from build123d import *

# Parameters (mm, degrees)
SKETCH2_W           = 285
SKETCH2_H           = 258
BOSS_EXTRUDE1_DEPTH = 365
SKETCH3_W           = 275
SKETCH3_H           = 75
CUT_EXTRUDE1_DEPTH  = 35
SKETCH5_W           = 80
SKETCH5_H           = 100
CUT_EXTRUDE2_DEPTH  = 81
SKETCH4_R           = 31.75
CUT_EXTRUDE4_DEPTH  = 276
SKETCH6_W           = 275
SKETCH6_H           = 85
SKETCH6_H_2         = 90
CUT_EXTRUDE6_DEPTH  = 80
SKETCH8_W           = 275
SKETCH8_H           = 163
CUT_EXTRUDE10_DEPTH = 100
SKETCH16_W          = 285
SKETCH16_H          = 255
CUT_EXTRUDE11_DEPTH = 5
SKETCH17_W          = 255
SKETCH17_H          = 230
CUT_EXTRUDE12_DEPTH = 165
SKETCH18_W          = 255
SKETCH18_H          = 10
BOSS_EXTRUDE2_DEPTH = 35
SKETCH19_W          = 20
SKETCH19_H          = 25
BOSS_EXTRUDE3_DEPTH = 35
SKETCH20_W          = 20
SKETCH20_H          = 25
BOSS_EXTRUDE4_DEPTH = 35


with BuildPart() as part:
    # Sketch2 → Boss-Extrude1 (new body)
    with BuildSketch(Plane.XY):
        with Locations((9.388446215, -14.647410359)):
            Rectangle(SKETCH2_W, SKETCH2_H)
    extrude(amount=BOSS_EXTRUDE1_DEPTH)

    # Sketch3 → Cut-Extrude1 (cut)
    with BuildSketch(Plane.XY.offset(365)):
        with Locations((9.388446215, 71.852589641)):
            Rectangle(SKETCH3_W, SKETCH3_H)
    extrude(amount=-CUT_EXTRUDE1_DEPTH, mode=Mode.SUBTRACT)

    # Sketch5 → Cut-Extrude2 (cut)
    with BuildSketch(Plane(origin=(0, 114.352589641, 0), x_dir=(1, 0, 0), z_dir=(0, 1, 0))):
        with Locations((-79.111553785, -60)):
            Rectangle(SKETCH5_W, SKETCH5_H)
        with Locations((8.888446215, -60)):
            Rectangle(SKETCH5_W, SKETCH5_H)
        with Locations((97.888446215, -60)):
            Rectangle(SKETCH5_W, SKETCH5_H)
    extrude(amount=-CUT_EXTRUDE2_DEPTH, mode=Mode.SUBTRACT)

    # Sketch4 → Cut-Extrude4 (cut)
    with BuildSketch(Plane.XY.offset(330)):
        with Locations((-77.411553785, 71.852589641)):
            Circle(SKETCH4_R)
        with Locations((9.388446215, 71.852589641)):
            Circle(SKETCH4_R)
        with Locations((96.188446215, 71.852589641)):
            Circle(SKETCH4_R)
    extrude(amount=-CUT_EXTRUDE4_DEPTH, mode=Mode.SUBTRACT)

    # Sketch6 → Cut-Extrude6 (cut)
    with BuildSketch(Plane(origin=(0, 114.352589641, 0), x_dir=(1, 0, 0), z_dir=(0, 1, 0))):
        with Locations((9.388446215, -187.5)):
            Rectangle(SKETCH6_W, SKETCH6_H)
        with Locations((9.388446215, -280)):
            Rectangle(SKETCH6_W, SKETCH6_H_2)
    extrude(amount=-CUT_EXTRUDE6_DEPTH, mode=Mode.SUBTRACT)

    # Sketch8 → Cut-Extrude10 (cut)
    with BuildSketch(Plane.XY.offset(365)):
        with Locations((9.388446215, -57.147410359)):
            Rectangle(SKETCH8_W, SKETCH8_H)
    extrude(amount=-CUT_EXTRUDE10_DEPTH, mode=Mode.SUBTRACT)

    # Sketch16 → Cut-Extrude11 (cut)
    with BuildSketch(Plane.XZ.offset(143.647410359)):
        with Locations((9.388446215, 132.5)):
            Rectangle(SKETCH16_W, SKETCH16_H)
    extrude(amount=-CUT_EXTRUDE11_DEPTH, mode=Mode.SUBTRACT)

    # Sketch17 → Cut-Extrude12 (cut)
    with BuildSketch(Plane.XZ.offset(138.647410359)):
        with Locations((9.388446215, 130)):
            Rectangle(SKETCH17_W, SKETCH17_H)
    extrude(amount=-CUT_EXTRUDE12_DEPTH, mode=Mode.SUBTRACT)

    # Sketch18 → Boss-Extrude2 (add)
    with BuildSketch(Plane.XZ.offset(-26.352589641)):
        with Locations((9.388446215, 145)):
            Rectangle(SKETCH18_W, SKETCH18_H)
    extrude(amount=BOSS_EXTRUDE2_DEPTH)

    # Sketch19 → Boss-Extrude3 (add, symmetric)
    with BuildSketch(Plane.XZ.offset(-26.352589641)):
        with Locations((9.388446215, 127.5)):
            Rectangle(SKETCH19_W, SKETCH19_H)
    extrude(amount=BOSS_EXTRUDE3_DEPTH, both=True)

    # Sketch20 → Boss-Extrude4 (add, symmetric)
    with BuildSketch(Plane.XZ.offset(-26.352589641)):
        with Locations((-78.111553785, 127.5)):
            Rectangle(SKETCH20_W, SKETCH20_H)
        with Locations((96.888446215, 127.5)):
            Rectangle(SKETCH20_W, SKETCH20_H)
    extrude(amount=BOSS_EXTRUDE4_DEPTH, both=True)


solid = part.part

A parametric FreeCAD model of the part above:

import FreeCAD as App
import Part
import Sketcher

V = App.Vector


def add_polygon(sketch, points):
    """Adds a closed chain of lines whose ends are joined by coincident constraints."""
    first, n = sketch.GeometryCount, len(points)
    for a, b in zip(points, points[1:] + points[:1]):
        sketch.addGeometry(Part.LineSegment(App.Vector(*a, 0), App.Vector(*b, 0)), False)
    for i in range(n):
        sketch.addConstraint(Sketcher.Constraint("Coincident", first + i, 2, first + (i + 1) % n, 1))

doc = App.newDocument("Part")
params = doc.addObject("Spreadsheet::Sheet", "Params")
for row, (alias, value) in enumerate([
    ("sketch1_width", "285 mm"),
    ("sketch1_height", "258 mm"),
    ("pad1_length", "365 mm"),
    ("sketch2_width", "275 mm"),
    ("sketch2_height", "75 mm"),
    ("pocket1_length", "35 mm"),
    ("sketch3_width", "80 mm"),
    ("sketch3_height", "100 mm"),
    ("pocket2_length", "81 mm"),
    ("sketch4_diameter", "63.5 mm"),
    ("pocket3_length", "276 mm"),
    ("sketch5_width", "275 mm"),
    ("sketch5_height", "85 mm"),
    ("sketch5_height2", "90 mm"),
    ("pocket4_length", "80 mm"),
    ("sketch6_width", "275 mm"),
    ("sketch6_height", "163 mm"),
    ("pocket5_length", "100 mm"),
    ("sketch7_width", "285 mm"),
    ("sketch7_height", "255 mm"),
    ("pocket6_length", "5 mm"),
    ("sketch8_width", "255 mm"),
    ("sketch8_height", "230 mm"),
    ("pocket7_length", "165 mm"),
    ("sketch9_width", "255 mm"),
    ("sketch9_height", "10 mm"),
    ("pad2_length", "35 mm"),
    ("sketch10_width", "20 mm"),
    ("sketch10_height", "25 mm"),
    ("pad3_length", "70 mm"),
    ("sketch11_width", "20 mm"),
    ("sketch11_height", "25 mm"),
    ("pad4_length", "70 mm"),
], start=1):
    params.set(f"A{row}", alias)
    params.set(f"B{row}", "=" + value)
    params.setAlias(f"B{row}", alias)

body = doc.addObject("PartDesign::Body", "Body")

sketch1 = body.newObject("Sketcher::SketchObject", "Sketch")
sketch1.AttachmentSupport = (doc.getObject("XY_Plane"), [""])
sketch1.MapMode = "FlatFace"
add_polygon(sketch1, [(-133, 114), (-133, -144), (152, -144), (152, 114)])
sketch1.addConstraint([
    Sketcher.Constraint("Vertical", 0),
    Sketcher.Constraint("Horizontal", 1),
    Sketcher.Constraint("Vertical", 2),
    Sketcher.Constraint("Horizontal", 3),
    Sketcher.Constraint("DistanceX", 1, 1, 1, 2, 285.0),
    Sketcher.Constraint("DistanceY", 0, 2, 0, 1, 258.0),
    Sketcher.Constraint("DistanceY", 0, 2, -1, 1, 143.64741),
    Sketcher.Constraint("DistanceX", 0, 2, -1, 1, 133.111554),
])
sketch1.setExpression("Constraints[8]", "Params.sketch1_width")
sketch1.setExpression("Constraints[9]", "Params.sketch1_height")
pad1 = body.newObject("PartDesign::Pad", "Pad")
pad1.Profile = sketch1
pad1.setExpression("Length", "Params.pad1_length")

sketch2 = body.newObject("Sketcher::SketchObject", "Sketch001")
sketch2.AttachmentSupport = (doc.getObject("XY_Plane"), [""])
sketch2.MapMode = "FlatFace"
sketch2.AttachmentOffset = App.Placement(V(0, 0, 365), App.Rotation())
add_polygon(sketch2, [(-128, 109), (-128, 34), (147, 34), (147, 109)])
sketch2.addConstraint([
    Sketcher.Constraint("Vertical", 0),
    Sketcher.Constraint("Horizontal", 1),
    Sketcher.Constraint("Vertical", 2),
    Sketcher.Constraint("Horizontal", 3),
    Sketcher.Constraint("DistanceX", 1, 1, 1, 2, 275.0),
    Sketcher.Constraint("DistanceY", 0, 2, 0, 1, 75.0),
    Sketcher.Constraint("DistanceY", -1, 1, 0, 2, 34.35259),
    Sketcher.Constraint("DistanceX", 0, 2, -1, 1, 128.111554),
])
sketch2.setExpression("Constraints[8]", "Params.sketch2_width")
sketch2.setExpression("Constraints[9]", "Params.sketch2_height")
pocket1 = body.newObject("PartDesign::Pocket", "Pocket")
pocket1.Profile = sketch2
pocket1.setExpression("Length", "Params.pocket1_length")

sketch3 = body.newObject("Sketcher::SketchObject", "Sketch002")
sketch3.AttachmentSupport = (doc.getObject("XZ_Plane"), [""])
sketch3.MapMode = "FlatFace"
sketch3.AttachmentOffset = App.Placement(V(0, 0, -114.35259), App.Rotation())
add_polygon(sketch3, [(-119, 10), (-119, 110), (-39, 110), (-39, 10)])
add_polygon(sketch3, [(-31, 10), (-31, 110), (49, 110), (49, 10)])
add_polygon(sketch3, [(58, 10), (58, 110), (138, 110), (138, 10)])
sketch3.addConstraint([
    Sketcher.Constraint("Vertical", 0),
    Sketcher.Constraint("Horizontal", 1),
    Sketcher.Constraint("Vertical", 2),
    Sketcher.Constraint("Horizontal", 3),
    Sketcher.Constraint("Vertical", 4),
    Sketcher.Constraint("Horizontal", 5),
    Sketcher.Constraint("Vertical", 6),
    Sketcher.Constraint("Horizontal", 7),
    Sketcher.Constraint("Vertical", 8),
    Sketcher.Constraint("Horizontal", 9),
    Sketcher.Constraint("Vertical", 10),
    Sketcher.Constraint("Horizontal", 11),
    Sketcher.Constraint("Horizontal", 1, 2, 4, 2),
    Sketcher.Constraint("Horizontal", 3, 2, 6, 2),
    Sketcher.Constraint("Horizontal", 5, 2, 8, 2),
    Sketcher.Constraint("Horizontal", 7, 2, 10, 2),
    Sketcher.Constraint("Equal", 3, 5),
    Sketcher.Constraint("Equal", 7, 9),
    Sketcher.Constraint("DistanceX", 1, 1, 1, 2, 80.0),
    Sketcher.Constraint("DistanceY", 0, 1, 0, 2, 100.0),
    Sketcher.Constraint("DistanceY", -1, 1, 0, 2, 110.0),
    Sketcher.Constraint("DistanceX", 1, 2, 4, 2, 8.0),
    Sketcher.Constraint("DistanceX", 5, 2, 8, 2, 9.0),
    Sketcher.Constraint("DistanceX", 0, 2, -1, 1, 119.111554),
])
sketch3.setExpression("Constraints[30]", "Params.sketch3_width")
sketch3.setExpression("Constraints[31]", "Params.sketch3_height")
pocket2 = body.newObject("PartDesign::Pocket", "Pocket001")
pocket2.Profile = sketch3
pocket2.setExpression("Length", "Params.pocket2_length")
pocket2.Reversed = True

sketch4 = body.newObject("Sketcher::SketchObject", "Sketch003")
sketch4.AttachmentSupport = (doc.getObject("XY_Plane"), [""])
sketch4.MapMode = "FlatFace"
sketch4.AttachmentOffset = App.Placement(V(0, 0, 330), App.Rotation())
sketch4.addGeometry([
    Part.Circle(V(-77, 72, 0), V(0, 0, 1), 32),
    Part.Circle(V(9, 72, 0), V(0, 0, 1), 32),
    Part.Circle(V(96, 72, 0), V(0, 0, 1), 32),
], False)
sketch4.addConstraint([
    Sketcher.Constraint("Equal", 0, 1),
    Sketcher.Constraint("Equal", 1, 2),
    Sketcher.Constraint("Horizontal", 0, 3, 1, 3),
    Sketcher.Constraint("Horizontal", 1, 3, 2, 3),
    Sketcher.Constraint("Diameter", 0, 63.5),
    Sketcher.Constraint("DistanceX", 0, 3, 1, 3, 86.8),
    Sketcher.Constraint("DistanceX", 1, 3, 2, 3, 86.8),
    Sketcher.Constraint("DistanceY", -1, 1, 0, 3, 71.85259),
    Sketcher.Constraint("DistanceX", 0, 3, -1, 1, 77.411554),
])
sketch4.setExpression("Constraints[4]", "Params.sketch4_diameter")
pocket3 = body.newObject("PartDesign::Pocket", "Pocket002")
pocket3.Profile = sketch4
pocket3.setExpression("Length", "Params.pocket3_length")

sketch5 = body.newObject("Sketcher::SketchObject", "Sketch004")
sketch5.AttachmentSupport = (doc.getObject("XZ_Plane"), [""])
sketch5.MapMode = "FlatFace"
sketch5.AttachmentOffset = App.Placement(V(0, 0, -114.35259), App.Rotation())
add_polygon(sketch5, [(-128, 145), (-128, 230), (147, 230), (147, 145)])
add_polygon(sketch5, [(-128, 235), (-128, 325), (147, 325), (147, 235)])
sketch5.addConstraint([
    Sketcher.Constraint("Vertical", 0),
    Sketcher.Constraint("Horizontal", 1),
    Sketcher.Constraint("Vertical", 2),
    Sketcher.Constraint("Horizontal", 3),
    Sketcher.Constraint("Vertical", 4),
    Sketcher.Constraint("Horizontal", 5),
    Sketcher.Constraint("Vertical", 6),
    Sketcher.Constraint("Horizontal", 7),
    Sketcher.Constraint("Vertical", 3, 2, 4, 2),
    Sketcher.Constraint("Vertical", 2, 2, 5, 2),
    Sketcher.Constraint("DistanceX", 1, 1, 1, 2, 275.0),
    Sketcher.Constraint("DistanceY", 0, 1, 0, 2, 85.0),
    Sketcher.Constraint("DistanceY", 4, 1, 4, 2, 90.0),
    Sketcher.Constraint("DistanceY", -1, 1, 0, 2, 230.0),
    Sketcher.Constraint("DistanceY", -1, 1, 4, 2, 325.0),
    Sketcher.Constraint("DistanceX", 0, 2, -1, 1, 128.111554),
])
sketch5.setExpression("Constraints[18]", "Params.sketch5_width")
sketch5.setExpression("Constraints[19]", "Params.sketch5_height")
sketch5.setExpression("Constraints[20]", "Params.sketch5_height2")
pocket4 = body.newObject("PartDesign::Pocket", "Pocket003")
pocket4.Profile = sketch5
pocket4.setExpression("Length", "Params.pocket4_length")
pocket4.Reversed = True

sketch6 = body.newObject("Sketcher::SketchObject", "Sketch005")
sketch6.AttachmentSupport = (doc.getObject("XY_Plane"), [""])
sketch6.MapMode = "FlatFace"
sketch6.AttachmentOffset = App.Placement(V(0, 0, 365), App.Rotation())
add_polygon(sketch6, [(-128, 24), (-128, -139), (147, -139), (147, 24)])
sketch6.addConstraint([
    Sketcher.Constraint("Vertical", 0),
    Sketcher.Constraint("Horizontal", 1),
    Sketcher.Constraint("Vertical", 2),
    Sketcher.Constraint("Horizontal", 3),
    Sketcher.Constraint("DistanceX", 1, 1, 1, 2, 275.0),
    Sketcher.Constraint("DistanceY", 0, 2, 0, 1, 163.0),
    Sketcher.Constraint("DistanceY", 0, 2, -1, 1, 138.64741),
    Sketcher.Constraint("DistanceX", 0, 2, -1, 1, 128.111554),
])
sketch6.setExpression("Constraints[8]", "Params.sketch6_width")
sketch6.setExpression("Constraints[9]", "Params.sketch6_height")
pocket5 = body.newObject("PartDesign::Pocket", "Pocket004")
pocket5.Profile = sketch6
pocket5.setExpression("Length", "Params.pocket5_length")

sketch7 = body.newObject("Sketcher::SketchObject", "Sketch006")
sketch7.AttachmentSupport = (doc.getObject("XZ_Plane"), [""])
sketch7.MapMode = "FlatFace"
sketch7.AttachmentOffset = App.Placement(V(0, 0, 143.64741), App.Rotation())
add_polygon(sketch7, [(-133, 260), (-133, 5), (152, 5), (152, 260)])
sketch7.addConstraint([
    Sketcher.Constraint("Vertical", 0),
    Sketcher.Constraint("Horizontal", 1),
    Sketcher.Constraint("Vertical", 2),
    Sketcher.Constraint("Horizontal", 3),
    Sketcher.Constraint("DistanceX", 1, 1, 1, 2, 285.0),
    Sketcher.Constraint("DistanceY", 0, 2, 0, 1, 255.0),
    Sketcher.Constraint("DistanceY", -1, 1, 0, 2, 5.0),
    Sketcher.Constraint("DistanceX", 0, 2, -1, 1, 133.111554),
])
sketch7.setExpression("Constraints[8]", "Params.sketch7_width")
sketch7.setExpression("Constraints[9]", "Params.sketch7_height")
pocket6 = body.newObject("PartDesign::Pocket", "Pocket005")
pocket6.Profile = sketch7
pocket6.setExpression("Length", "Params.pocket6_length")

sketch8 = body.newObject("Sketcher::SketchObject", "Sketch007")
sketch8.AttachmentSupport = (doc.getObject("XZ_Plane"), [""])
sketch8.MapMode = "FlatFace"
sketch8.AttachmentOffset = App.Placement(V(0, 0, 138.64741), App.Rotation())
add_polygon(sketch8, [(-118, 245), (-118, 15), (137, 15), (137, 245)])
sketch8.addConstraint([
    Sketcher.Constraint("Vertical", 0),
    Sketcher.Constraint("Horizontal", 1),
    Sketcher.Constraint("Vertical", 2),
    Sketcher.Constraint("Horizontal", 3),
    Sketcher.Constraint("DistanceX", 1, 1, 1, 2, 255.0),
    Sketcher.Constraint("DistanceY", 0, 2, 0, 1, 230.0),
    Sketcher.Constraint("DistanceY", -1, 1, 0, 2, 15.0),
    Sketcher.Constraint("DistanceX", 0, 2, -1, 1, 118.111554),
])
sketch8.setExpression("Constraints[8]", "Params.sketch8_width")
sketch8.setExpression("Constraints[9]", "Params.sketch8_height")
pocket7 = body.newObject("PartDesign::Pocket", "Pocket006")
pocket7.Profile = sketch8
pocket7.setExpression("Length", "Params.pocket7_length")

sketch9 = body.newObject("Sketcher::SketchObject", "Sketch008")
sketch9.AttachmentSupport = (doc.getObject("XZ_Plane"), [""])
sketch9.MapMode = "FlatFace"
sketch9.AttachmentOffset = App.Placement(V(0, 0, -26.35259), App.Rotation())
add_polygon(sketch9, [(-118, 150), (-118, 140), (137, 140), (137, 150)])
sketch9.addConstraint([
    Sketcher.Constraint("Vertical", 0),
    Sketcher.Constraint("Horizontal", 1),
    Sketcher.Constraint("Vertical", 2),
    Sketcher.Constraint("Horizontal", 3),
    Sketcher.Constraint("DistanceX", 1, 1, 1, 2, 255.0),
    Sketcher.Constraint("DistanceY", 0, 2, 0, 1, 10.0),
    Sketcher.Constraint("DistanceY", -1, 1, 0, 2, 140.0),
    Sketcher.Constraint("DistanceX", 0, 2, -1, 1, 118.111554),
])
sketch9.setExpression("Constraints[8]", "Params.sketch9_width")
sketch9.setExpression("Constraints[9]", "Params.sketch9_height")
pad2 = body.newObject("PartDesign::Pad", "Pad001")
pad2.Profile = sketch9
pad2.setExpression("Length", "Params.pad2_length")

sketch10 = body.newObject("Sketcher::SketchObject", "Sketch009")
sketch10.AttachmentSupport = (doc.getObject("XZ_Plane"), [""])
sketch10.MapMode = "FlatFace"
sketch10.AttachmentOffset = App.Placement(V(0, 0, -26.35259), App.Rotation())
add_polygon(sketch10, [(-1, 140), (-1, 115), (19, 115), (19, 140)])
sketch10.addConstraint([
    Sketcher.Constraint("Vertical", 0),
    Sketcher.Constraint("Horizontal", 1),
    Sketcher.Constraint("Vertical", 2),
    Sketcher.Constraint("Horizontal", 3),
    Sketcher.Constraint("DistanceX", 1, 1, 1, 2, 20.0),
    Sketcher.Constraint("DistanceY", 0, 2, 0, 1, 25.0),
    Sketcher.Constraint("DistanceY", -1, 1, 0, 2, 115.0),
    Sketcher.Constraint("DistanceX", 0, 2, -1, 1, 0.611554),
])
sketch10.setExpression("Constraints[8]", "Params.sketch10_width")
sketch10.setExpression("Constraints[9]", "Params.sketch10_height")
pad3 = body.newObject("PartDesign::Pad", "Pad002")
pad3.Profile = sketch10
pad3.setExpression("Length", "Params.pad3_length")
pad3.Midplane = True

sketch11 = body.newObject("Sketcher::SketchObject", "Sketch010")
sketch11.AttachmentSupport = (doc.getObject("XZ_Plane"), [""])
sketch11.MapMode = "FlatFace"
sketch11.AttachmentOffset = App.Placement(V(0, 0, -26.35259), App.Rotation())
add_polygon(sketch11, [(-88, 140), (-88, 115), (-68, 115), (-68, 140)])
add_polygon(sketch11, [(87, 140), (87, 115), (107, 115), (107, 140)])
sketch11.addConstraint([
    Sketcher.Constraint("Vertical", 0),
    Sketcher.Constraint("Horizontal", 1),
    Sketcher.Constraint("Vertical", 2),
    Sketcher.Constraint("Horizontal", 3),
    Sketcher.Constraint("Vertical", 4),
    Sketcher.Constraint("Horizontal", 5),
    Sketcher.Constraint("Vertical", 6),
    Sketcher.Constraint("Horizontal", 7),
    Sketcher.Constraint("Horizontal", 1, 2, 4, 2),
    Sketcher.Constraint("Horizontal", 3, 2, 6, 2),
    Sketcher.Constraint("Equal", 3, 5),
    Sketcher.Constraint("DistanceX", 1, 1, 1, 2, 20.0),
    Sketcher.Constraint("DistanceY", 0, 2, 0, 1, 25.0),
    Sketcher.Constraint("DistanceY", -1, 1, 0, 2, 115.0),
    Sketcher.Constraint("DistanceX", 1, 2, 4, 2, 155.0),
    Sketcher.Constraint("DistanceX", 0, 2, -1, 1, 88.111554),
])
sketch11.setExpression("Constraints[19]", "Params.sketch11_width")
sketch11.setExpression("Constraints[20]", "Params.sketch11_height")
pad4 = body.newObject("PartDesign::Pad", "Pad003")
pad4.Profile = sketch11
pad4.setExpression("Length", "Params.pad4_length")
pad4.Midplane = True

doc.recompute()
